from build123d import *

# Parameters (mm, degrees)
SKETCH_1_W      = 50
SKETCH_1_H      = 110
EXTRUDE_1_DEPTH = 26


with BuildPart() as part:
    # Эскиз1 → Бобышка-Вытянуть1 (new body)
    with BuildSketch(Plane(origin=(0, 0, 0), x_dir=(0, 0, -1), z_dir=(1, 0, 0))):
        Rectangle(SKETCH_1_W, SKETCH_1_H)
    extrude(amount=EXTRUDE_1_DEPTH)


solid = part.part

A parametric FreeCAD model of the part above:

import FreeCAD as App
import Part
import Sketcher

doc = App.newDocument("Part")
body = doc.addObject("PartDesign::Body", "Body")

# Sketch on YZ plane
sketch1 = body.newObject("Sketcher::SketchObject", "Sketch")
sketch1.AttachmentSupport = (doc.getObject("YZ_Plane"), [""])
sketch1.MapMode = "FlatFace"
sketch1.addGeometry(Part.LineSegment(App.Vector(55, 25, 0), App.Vector(-55, 25, 0)), False)
sketch1.addGeometry(Part.LineSegment(App.Vector(-55, 25, 0), App.Vector(-55, -25, 0)), False)
sketch1.addGeometry(Part.LineSegment(App.Vector(-55, -25, 0), App.Vector(55, -25, 0)), False)
sketch1.addGeometry(Part.LineSegment(App.Vector(55, -25, 0), App.Vector(55, 25, 0)), False)
sketch1.addConstraint(Sketcher.Constraint("Coincident", 0, 2, 1, 1))
sketch1.addConstraint(Sketcher.Constraint("Coincident", 1, 2, 2, 1))
sketch1.addConstraint(Sketcher.Constraint("Coincident", 2, 2, 3, 1))
sketch1.addConstraint(Sketcher.Constraint("Coincident", 3, 2, 0, 1))
sketch1.addConstraint(Sketcher.Constraint("Horizontal", 0))
sketch1.addConstraint(Sketcher.Constraint("Vertical", 1))
sketch1.addConstraint(Sketcher.Constraint("Horizontal", 2))
sketch1.addConstraint(Sketcher.Constraint("Vertical", 3))
sketch1.addConstraint(Sketcher.Constraint("Symmetric", 0, 2, 2, 2, -1, 1))
sketch1.addConstraint(Sketcher.Constraint("DistanceX", 0, 2, 0, 1, 110.0))
sketch1.addConstraint(Sketcher.Constraint("DistanceY", 1, 2, 1, 1, 50.0))
pad1 = body.newObject("PartDesign::Pad", "Pad")
pad1.Profile = sketch1
pad1.Length = 26

doc.recompute()
